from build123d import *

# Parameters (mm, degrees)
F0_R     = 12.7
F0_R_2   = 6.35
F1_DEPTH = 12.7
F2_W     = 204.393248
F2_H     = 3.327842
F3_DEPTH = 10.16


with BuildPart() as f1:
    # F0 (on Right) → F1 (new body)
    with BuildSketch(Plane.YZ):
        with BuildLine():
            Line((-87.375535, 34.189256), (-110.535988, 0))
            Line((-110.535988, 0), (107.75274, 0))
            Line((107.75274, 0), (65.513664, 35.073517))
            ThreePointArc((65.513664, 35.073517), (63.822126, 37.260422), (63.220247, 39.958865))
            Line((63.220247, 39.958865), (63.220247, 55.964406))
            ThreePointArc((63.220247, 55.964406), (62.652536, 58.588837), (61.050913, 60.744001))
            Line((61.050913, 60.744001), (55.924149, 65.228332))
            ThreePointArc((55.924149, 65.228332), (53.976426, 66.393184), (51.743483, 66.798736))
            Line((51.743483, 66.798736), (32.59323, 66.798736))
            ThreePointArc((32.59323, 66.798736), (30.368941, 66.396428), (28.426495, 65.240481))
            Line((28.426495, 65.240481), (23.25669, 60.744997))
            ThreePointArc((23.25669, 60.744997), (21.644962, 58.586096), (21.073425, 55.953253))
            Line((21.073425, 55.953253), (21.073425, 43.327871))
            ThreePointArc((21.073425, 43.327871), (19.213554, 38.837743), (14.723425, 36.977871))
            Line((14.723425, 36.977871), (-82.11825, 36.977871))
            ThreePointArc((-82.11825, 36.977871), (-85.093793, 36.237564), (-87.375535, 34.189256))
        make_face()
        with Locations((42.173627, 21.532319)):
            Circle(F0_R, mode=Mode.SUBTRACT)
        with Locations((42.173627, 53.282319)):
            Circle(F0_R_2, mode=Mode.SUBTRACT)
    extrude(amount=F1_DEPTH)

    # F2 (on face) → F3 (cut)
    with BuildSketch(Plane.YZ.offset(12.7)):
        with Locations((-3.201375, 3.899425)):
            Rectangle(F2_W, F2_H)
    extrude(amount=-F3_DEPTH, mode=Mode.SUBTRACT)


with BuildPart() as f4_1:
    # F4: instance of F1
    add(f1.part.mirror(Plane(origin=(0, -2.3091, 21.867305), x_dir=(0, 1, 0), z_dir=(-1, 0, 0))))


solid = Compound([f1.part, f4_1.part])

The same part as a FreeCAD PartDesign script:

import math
import FreeCAD as App
import Part
import Sketcher

V = App.Vector
Q = App.Units.Quantity

doc = App.newDocument("Part")
body = doc.addObject("PartDesign::Body", "Body")

sketch1 = doc.addObject("Sketcher::SketchObject", "Sketch")
body.addObject(sketch1)
sketch1.AttachmentSupport = (doc.YZ_Plane, [""])
sketch1.MapMode = "FlatFace"
sketch1.addGeometry([
    Part.LineSegment(V(-87.4, 34.2, 0), V(-110.5, 0, 0)),
    Part.LineSegment(V(-110.5, 0, 0), V(107.8, 0, 0)),
    Part.LineSegment(V(107.8, 0, 0), V(65.5, 35.1, 0)),
    Part.ArcOfCircle(Part.Circle(V(69.6, 40, 0), V(0, 0, 1), 6.4), math.radians(-180), math.radians(-130)),
    Part.LineSegment(V(63.2, 40, 0), V(63.2, 56, 0)),
    Part.ArcOfCircle(Part.Circle(V(56.9, 56, 0), V(0, 0, 1), 6.3), math.radians(0), math.radians(49)),
    Part.LineSegment(V(61.1, 60.7, 0), V(55.9, 65.2, 0)),
    Part.ArcOfCircle(Part.Circle(V(51.7, 60.4, 0), V(0, 0, 1), 6.4), math.radians(49), math.radians(90)),
    Part.LineSegment(V(51.7, 66.8, 0), V(32.6, 66.8, 0)),
    Part.ArcOfCircle(Part.Circle(V(32.6, 60.4, 0), V(0, 0, 1), 6.3), math.radians(90), math.radians(131)),
    Part.LineSegment(V(28.4, 65.2, 0), V(23.3, 60.7, 0)),
    Part.ArcOfCircle(Part.Circle(V(27.4, 56, 0), V(0, 0, 1), 6.3), math.radians(131), math.radians(180)),
    Part.LineSegment(V(21.1, 56, 0), V(21.1, 43.3, 0)),
    Part.ArcOfCircle(Part.Circle(V(14.7, 43.3, 0), V(0, 0, 1), 6.3), math.radians(-90), math.radians(0)),
    Part.LineSegment(V(14.7, 37, 0), V(-82.1, 37, 0)),
    Part.ArcOfCircle(Part.Circle(V(-82.1, 30.6, 0), V(0, 0, 1), 6.3), math.radians(90), math.radians(146)),
    Part.Circle(V(42.2, 21.5, 0), V(0, 0, 1), 12.7),
    Part.Circle(V(42.2, 53.3, 0), V(0, 0, 1), 6.3),
], False)
sketch1.addConstraint([
    Sketcher.Constraint("Coincident", 0, 2, 1, 1),
    Sketcher.Constraint("Coincident", 1, 2, 2, 1),
    Sketcher.Constraint("Tangent", 2, 2, 3, 2),
    Sketcher.Constraint("Tangent", 3, 1, 4, 1),
    Sketcher.Constraint("Tangent", 4, 2, 5, 1),
    Sketcher.Constraint("Tangent", 5, 2, 6, 1),
    Sketcher.Constraint("Tangent", 6, 2, 7, 1),
    Sketcher.Constraint("Tangent", 7, 2, 8, 1),
    Sketcher.Constraint("Tangent", 8, 2, 9, 1),
    Sketcher.Constraint("Tangent", 9, 2, 10, 1),
    Sketcher.Constraint("Tangent", 10, 2, 11, 1),
    Sketcher.Constraint("Tangent", 11, 2, 12, 1),
    Sketcher.Constraint("Tangent", 12, 2, 13, 2),
    Sketcher.Constraint("Tangent", 13, 1, 14, 1),
    Sketcher.Constraint("Tangent", 14, 2, 15, 1),
    Sketcher.Constraint("Tangent", 15, 2, 0, 1),
    Sketcher.Constraint("Horizontal", 1),
    Sketcher.Constraint("Vertical", 4),
    Sketcher.Constraint("Horizontal", 8),
    Sketcher.Constraint("Vertical", 12),
    Sketcher.Constraint("Horizontal", 14),
    Sketcher.Constraint("Equal", 9, 11),
    Sketcher.Constraint("Equal", 11, 13),
    Sketcher.Constraint("Equal", 5, 15),
    Sketcher.Constraint("Equal", 13, 17),
    Sketcher.Constraint("PointOnObject", 0, 2, -1),
    Sketcher.Constraint("Vertical", 16, 3, 17, 3),
    Sketcher.Constraint("Diameter", 16, Q("1 in")),
    Sketcher.Constraint("Diameter", 17, Q("0.5 in")),
    Sketcher.Constraint("Radius", 3, Q("0.2500002 in")),
    Sketcher.Constraint("Radius", 5, Q("0.2499998 in")),
    Sketcher.Constraint("Radius", 7, Q("6.350008 mm")),
    Sketcher.Constraint("DistanceY", 3, 3, 11, 3, Q("0.6297002 in")),
    Sketcher.Constraint("DistanceX", 15, 3, 9, 3, Q("4.5162001 in")),
    Sketcher.Constraint("DistanceX", 1, 1, 1, 2, Q("218.288728 mm")),
    Sketcher.Constraint("DistanceY", 4, 1, 4, 2, Q("16.005541 mm")),
    Sketcher.Constraint("DistanceY", 12, 2, 12, 1, Q("12.625382 mm")),
    Sketcher.Constraint("DistanceY", -1, 1, 5, 2, Q("60.744001 mm")),
    Sketcher.Constraint("DistanceX", 13, 3, 16, 3, Q("27.450201 mm")),
    Sketcher.Constraint("DistanceY", 16, 3, 2, 2, Q("13.541198 mm")),
    Sketcher.Constraint("DistanceY", 2, 2, 17, 3, Q("18.208802 mm")),
    Sketcher.Constraint("DistanceX", 6, 2, 4, 2, Q("7.296098 mm")),
    Sketcher.Constraint("Distance", 0, Q("41.295421 mm")),
    Sketcher.Constraint("Distance", 2, Q("54.90256 mm")),
    Sketcher.Constraint("DistanceX", 8, 2, 8, 1, Q("19.150253 mm")),
    Sketcher.Constraint("DistanceX", 14, 2, 14, 1, Q("96.841675 mm")),
    Sketcher.Constraint("DistanceX", -1, 1, 3, 3, Q("69.570251 mm")),
])
pad1 = doc.addObject("PartDesign::Pad", "Pad")
body.addObject(pad1)
pad1.Profile = sketch1
pad1.Length = Q("0.5 in")

sketch2 = doc.addObject("Sketcher::SketchObject", "Sketch001")
body.addObject(sketch2)
sketch2.AttachmentSupport = (doc.YZ_Plane, [""])
sketch2.MapMode = "FlatFace"
sketch2.AttachmentOffset = App.Placement(V(0, 0, 0.5 * 25.4), App.Rotation())
sketch2.addGeometry([
    Part.LineSegment(V(-105.4, 5.6, 0), V(-105.4, 2.2, 0)),
    Part.LineSegment(V(-105.4, 2.2, 0), V(99, 2.2, 0)),
    Part.LineSegment(V(99, 2.2, 0), V(99, 5.6, 0)),
    Part.LineSegment(V(99, 5.6, 0), V(-105.4, 5.6, 0)),
], False)
sketch2.addConstraint([
    Sketcher.Constraint("Coincident", 0, 2, 1, 1),
    Sketcher.Constraint("Coincident", 1, 2, 2, 1),
    Sketcher.Constraint("Coincident", 2, 2, 3, 1),
    Sketcher.Constraint("Coincident", 3, 2, 0, 1),
    Sketcher.Constraint("Vertical", 0),
    Sketcher.Constraint("Horizontal", 1),
    Sketcher.Constraint("Vertical", 2),
    Sketcher.Constraint("Horizontal", 3),
    Sketcher.Constraint("DistanceX", 1, 1, 1, 2, Q("204.393248 mm")),
    Sketcher.Constraint("DistanceY", 0, 2, 0, 1, Q("3.327842 mm")),
    Sketcher.Constraint("DistanceX", 0, 2, -1, 1, Q("105.397999 mm")),
    Sketcher.Constraint("DistanceY", -1, 1, 0, 2, Q("2.235504 mm")),
])
pocket1 = doc.addObject("PartDesign::Pocket", "Pocket")
body.addObject(pocket1)
pocket1.Profile = sketch2
pocket1.Length = Q("0.4 in")
body2 = doc.addObject("PartDesign::Body", "Body001")
doc.recompute()

mirroring = doc.addObject("Part::Mirroring", "Mirroring")
mirroring.Source = body
mirroring.Base = V(0, -2.3091, 21.867305)
mirroring.Normal = V(-1, 0, 0)
body2.BaseFeature = mirroring
doc.recompute()
mirroring.Visibility = False

doc.recompute()
